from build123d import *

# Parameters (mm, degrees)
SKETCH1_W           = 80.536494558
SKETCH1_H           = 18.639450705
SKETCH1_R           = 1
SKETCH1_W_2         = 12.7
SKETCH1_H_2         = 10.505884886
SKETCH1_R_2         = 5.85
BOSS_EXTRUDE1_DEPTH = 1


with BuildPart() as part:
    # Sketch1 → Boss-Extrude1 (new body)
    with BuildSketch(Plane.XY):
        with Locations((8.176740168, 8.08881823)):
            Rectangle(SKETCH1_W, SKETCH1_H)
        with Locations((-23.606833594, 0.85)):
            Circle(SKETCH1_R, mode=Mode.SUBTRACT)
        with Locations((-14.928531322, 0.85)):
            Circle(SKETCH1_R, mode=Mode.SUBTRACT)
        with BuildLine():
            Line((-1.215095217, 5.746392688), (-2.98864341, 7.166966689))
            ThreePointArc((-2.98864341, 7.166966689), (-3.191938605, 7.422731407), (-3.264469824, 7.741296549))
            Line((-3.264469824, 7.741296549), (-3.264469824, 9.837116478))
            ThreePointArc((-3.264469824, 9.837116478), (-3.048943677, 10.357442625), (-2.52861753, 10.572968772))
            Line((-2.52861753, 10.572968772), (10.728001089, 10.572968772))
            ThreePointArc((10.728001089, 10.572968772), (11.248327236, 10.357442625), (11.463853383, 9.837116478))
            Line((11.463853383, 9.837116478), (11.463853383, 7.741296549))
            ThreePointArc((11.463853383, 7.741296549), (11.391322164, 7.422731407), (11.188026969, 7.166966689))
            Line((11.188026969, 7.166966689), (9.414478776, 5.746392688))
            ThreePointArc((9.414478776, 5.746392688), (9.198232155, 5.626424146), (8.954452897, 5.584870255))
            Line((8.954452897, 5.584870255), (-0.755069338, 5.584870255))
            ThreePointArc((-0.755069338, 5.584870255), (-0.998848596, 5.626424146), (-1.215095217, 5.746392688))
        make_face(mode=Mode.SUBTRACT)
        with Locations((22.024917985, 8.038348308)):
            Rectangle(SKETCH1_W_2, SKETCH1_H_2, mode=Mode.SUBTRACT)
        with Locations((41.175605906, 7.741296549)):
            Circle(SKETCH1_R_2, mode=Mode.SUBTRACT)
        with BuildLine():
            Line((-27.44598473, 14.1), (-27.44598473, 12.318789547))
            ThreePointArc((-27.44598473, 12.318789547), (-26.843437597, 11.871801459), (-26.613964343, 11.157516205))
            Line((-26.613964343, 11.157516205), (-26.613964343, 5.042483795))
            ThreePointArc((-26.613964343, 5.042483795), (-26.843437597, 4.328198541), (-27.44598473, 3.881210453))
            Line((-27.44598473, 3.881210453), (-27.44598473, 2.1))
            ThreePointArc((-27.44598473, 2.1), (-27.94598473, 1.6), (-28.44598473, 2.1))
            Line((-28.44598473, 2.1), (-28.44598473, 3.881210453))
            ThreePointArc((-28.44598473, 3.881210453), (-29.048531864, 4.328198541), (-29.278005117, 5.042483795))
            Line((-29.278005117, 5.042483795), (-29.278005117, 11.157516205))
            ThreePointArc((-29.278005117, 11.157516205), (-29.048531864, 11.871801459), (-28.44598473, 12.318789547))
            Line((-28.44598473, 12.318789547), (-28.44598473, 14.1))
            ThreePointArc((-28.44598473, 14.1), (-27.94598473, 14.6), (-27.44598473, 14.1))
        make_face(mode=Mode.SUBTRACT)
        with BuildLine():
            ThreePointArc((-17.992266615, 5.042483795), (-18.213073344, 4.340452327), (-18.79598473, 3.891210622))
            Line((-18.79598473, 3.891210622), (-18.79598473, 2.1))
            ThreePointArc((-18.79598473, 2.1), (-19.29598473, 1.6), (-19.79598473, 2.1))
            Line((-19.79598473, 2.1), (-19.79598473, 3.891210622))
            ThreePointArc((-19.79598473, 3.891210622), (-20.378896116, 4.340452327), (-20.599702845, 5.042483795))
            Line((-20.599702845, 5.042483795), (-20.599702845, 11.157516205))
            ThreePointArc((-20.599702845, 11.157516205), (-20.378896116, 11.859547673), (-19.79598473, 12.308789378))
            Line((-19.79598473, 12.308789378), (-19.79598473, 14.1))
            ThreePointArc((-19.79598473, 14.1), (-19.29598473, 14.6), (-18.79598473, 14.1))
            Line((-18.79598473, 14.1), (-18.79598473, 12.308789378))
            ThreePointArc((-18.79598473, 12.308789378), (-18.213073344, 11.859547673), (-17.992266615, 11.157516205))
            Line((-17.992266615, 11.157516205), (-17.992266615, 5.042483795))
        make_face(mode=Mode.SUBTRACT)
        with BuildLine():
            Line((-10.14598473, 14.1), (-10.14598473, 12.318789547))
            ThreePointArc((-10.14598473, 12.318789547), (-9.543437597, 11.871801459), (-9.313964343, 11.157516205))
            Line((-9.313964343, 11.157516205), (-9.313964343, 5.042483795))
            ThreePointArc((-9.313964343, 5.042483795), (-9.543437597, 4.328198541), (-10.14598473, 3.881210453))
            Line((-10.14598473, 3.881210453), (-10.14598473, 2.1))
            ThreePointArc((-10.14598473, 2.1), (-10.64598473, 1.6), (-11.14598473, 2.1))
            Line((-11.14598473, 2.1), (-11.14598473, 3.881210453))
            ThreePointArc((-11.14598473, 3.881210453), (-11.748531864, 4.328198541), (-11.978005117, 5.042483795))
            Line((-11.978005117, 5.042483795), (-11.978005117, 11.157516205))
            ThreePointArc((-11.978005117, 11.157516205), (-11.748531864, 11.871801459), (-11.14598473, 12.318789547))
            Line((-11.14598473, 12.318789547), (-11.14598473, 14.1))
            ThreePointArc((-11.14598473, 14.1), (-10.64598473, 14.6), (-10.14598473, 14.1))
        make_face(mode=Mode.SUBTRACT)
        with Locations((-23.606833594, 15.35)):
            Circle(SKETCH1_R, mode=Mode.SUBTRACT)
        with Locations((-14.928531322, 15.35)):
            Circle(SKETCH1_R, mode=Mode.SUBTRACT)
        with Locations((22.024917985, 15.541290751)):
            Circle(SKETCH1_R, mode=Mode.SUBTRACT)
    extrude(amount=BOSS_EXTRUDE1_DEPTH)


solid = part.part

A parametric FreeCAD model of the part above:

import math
import FreeCAD as App
import Part
import Sketcher

V = App.Vector
Q = App.Units.Quantity


def add_polygon(sketch, points):
    """Adds a closed chain of lines whose ends are joined by coincident constraints."""
    first, n = sketch.GeometryCount, len(points)
    for a, b in zip(points, points[1:] + points[:1]):
        sketch.addGeometry(Part.LineSegment(App.Vector(*a, 0), App.Vector(*b, 0)), False)
    for i in range(n):
        sketch.addConstraint(Sketcher.Constraint("Coincident", first + i, 2, first + (i + 1) % n, 1))

doc = App.newDocument("Part")
params = doc.addObject("Spreadsheet::Sheet", "Params")
for row, (alias, value) in enumerate([
    ("sketch1_diameter", "2 mm"),
    ("sketch1_diameter2", "11.7 mm"),
    ("sketch1_radius", "0.5 mm"),
    ("sketch1_width", "12.7 mm"),
    ("pad1_length", "1 mm"),
], start=1):
    params.set(f"A{row}", alias)
    params.set(f"B{row}", "=" + value)
    params.setAlias(f"B{row}", alias)

body = doc.addObject("PartDesign::Body", "Body")

sketch1 = body.newObject("Sketcher::SketchObject", "Sketch")
sketch1.AttachmentSupport = (doc.getObject("XY_Plane"), [""])
sketch1.MapMode = "FlatFace"
add_polygon(sketch1, [(-32.09, 17.41), (-32.09, -1.23), (48.44, -1.23), (48.44, 17.41)])
sketch1.addGeometry(Part.Circle(V(-23.61, 0.85, 0), V(0, 0, 1), 1), False)
sketch1.addGeometry(Part.Circle(V(-14.93, 0.85, 0), V(0, 0, 1), 1), False)
sketch1.addGeometry(Part.ArcOfCircle(Part.Circle(V(-27.95, 14.1, 0), V(0, 0, 1), 0.5), math.radians(0), math.radians(180)), False)
sketch1.addGeometry(Part.LineSegment(V(-27.45, 14.1, 0), V(-27.45, 12.32, 0)), False)
sketch1.addGeometry(Part.ArcOfCircle(Part.Circle(V(-27.84, 11.16, 0), V(0, 0, 1), 1.23), math.radians(0), math.radians(71)), False)
sketch1.addGeometry(Part.LineSegment(V(-26.61, 11.16, 0), V(-26.61, 5.04, 0)), False)
sketch1.addGeometry(Part.ArcOfCircle(Part.Circle(V(-27.84, 5.04, 0), V(0, 0, 1), 1.23), math.radians(-71), math.radians(0)), False)
sketch1.addGeometry(Part.LineSegment(V(-27.45, 3.88, 0), V(-27.45, 2.1, 0)), False)
sketch1.addGeometry(Part.ArcOfCircle(Part.Circle(V(-27.95, 2.1, 0), V(0, 0, 1), 0.5), math.radians(180), math.radians(360)), False)
sketch1.addGeometry(Part.LineSegment(V(-28.45, 2.1, 0), V(-28.45, 3.88, 0)), False)
sketch1.addGeometry(Part.ArcOfCircle(Part.Circle(V(-28.05, 5.04, 0), V(0, 0, 1), 1.23), math.radians(180), math.radians(251)), False)
sketch1.addGeometry(Part.LineSegment(V(-29.28, 5.04, 0), V(-29.28, 11.16, 0)), False)
sketch1.addGeometry(Part.ArcOfCircle(Part.Circle(V(-28.05, 11.16, 0), V(0, 0, 1), 1.23), math.radians(109), math.radians(180)), False)
sketch1.addGeometry(Part.LineSegment(V(-28.45, 12.32, 0), V(-28.45, 14.1, 0)), False)
sketch1.addGeometry(Part.LineSegment(V(-17.99, 11.16, 0), V(-17.99, 5.04, 0)), False)
sketch1.addGeometry(Part.ArcOfCircle(Part.Circle(V(-19.22, 5.04, 0), V(0, 0, 1), 1.23), math.radians(-70), math.radians(0)), False)
sketch1.addGeometry(Part.LineSegment(V(-18.8, 3.89, 0), V(-18.8, 2.1, 0)), False)
sketch1.addGeometry(Part.ArcOfCircle(Part.Circle(V(-19.3, 2.1, 0), V(0, 0, 1), 0.5), math.radians(180), math.radians(360)), False)
sketch1.addGeometry(Part.LineSegment(V(-19.8, 2.1, 0), V(-19.8, 3.89, 0)), False)
sketch1.addGeometry(Part.ArcOfCircle(Part.Circle(V(-19.37, 5.04, 0), V(0, 0, 1), 1.23), math.radians(180), math.radians(250)), False)
sketch1.addGeometry(Part.LineSegment(V(-20.6, 5.04, 0), V(-20.6, 11.16, 0)), False)
sketch1.addGeometry(Part.ArcOfCircle(Part.Circle(V(-19.37, 11.16, 0), V(0, 0, 1), 1.23), math.radians(110), math.radians(180)), False)
sketch1.addGeometry(Part.LineSegment(V(-19.8, 12.31, 0), V(-19.8, 14.1, 0)), False)
sketch1.addGeometry(Part.ArcOfCircle(Part.Circle(V(-19.3, 14.1, 0), V(0, 0, 1), 0.5), math.radians(0), math.radians(180)), False)
sketch1.addGeometry(Part.LineSegment(V(-18.8, 14.1, 0), V(-18.8, 12.31, 0)), False)
sketch1.addGeometry(Part.ArcOfCircle(Part.Circle(V(-19.22, 11.16, 0), V(0, 0, 1), 1.23), math.radians(0), math.radians(70)), False)
sketch1.addGeometry(Part.ArcOfCircle(Part.Circle(V(-10.65, 14.1, 0), V(0, 0, 1), 0.5), math.radians(0), math.radians(180)), False)
sketch1.addGeometry(Part.LineSegment(V(-10.15, 14.1, 0), V(-10.15, 12.32, 0)), False)
sketch1.addGeometry(Part.ArcOfCircle(Part.Circle(V(-10.54, 11.16, 0), V(0, 0, 1), 1.23), math.radians(0), math.radians(71)), False)
sketch1.addGeometry(Part.LineSegment(V(-9.31, 11.16, 0), V(-9.31, 5.04, 0)), False)
sketch1.addGeometry(Part.ArcOfCircle(Part.Circle(V(-10.54, 5.04, 0), V(0, 0, 1), 1.23), math.radians(-71), math.radians(0)), False)
sketch1.addGeometry(Part.LineSegment(V(-10.15, 3.88, 0), V(-10.15, 2.1, 0)), False)
sketch1.addGeometry(Part.ArcOfCircle(Part.Circle(V(-10.65, 2.1, 0), V(0, 0, 1), 0.5), math.radians(180), math.radians(360)), False)
sketch1.addGeometry(Part.LineSegment(V(-11.15, 2.1, 0), V(-11.15, 3.88, 0)), False)
sketch1.addGeometry(Part.ArcOfCircle(Part.Circle(V(-10.75, 5.04, 0), V(0, 0, 1), 1.23), math.radians(180), math.radians(251)), False)
sketch1.addGeometry(Part.LineSegment(V(-11.98, 5.04, 0), V(-11.98, 11.16, 0)), False)
sketch1.addGeometry(Part.ArcOfCircle(Part.Circle(V(-10.75, 11.16, 0), V(0, 0, 1), 1.23), math.radians(109), math.radians(180)), False)
sketch1.addGeometry(Part.LineSegment(V(-11.15, 12.32, 0), V(-11.15, 14.1, 0)), False)
sketch1.addGeometry(Part.ArcOfCircle(Part.Circle(V(-0.76, 6.32, 0), V(0, 0, 1), 0.74), math.radians(-129), math.radians(-90)), False)
sketch1.addGeometry(Part.LineSegment(V(-1.22, 5.75, 0), V(-2.99, 7.17, 0)), False)
sketch1.addGeometry(Part.ArcOfCircle(Part.Circle(V(-2.53, 7.74, 0), V(0, 0, 1), 0.74), math.radians(-180), math.radians(-129)), False)
sketch1.addGeometry(Part.LineSegment(V(-3.26, 7.74, 0), V(-3.26, 9.84, 0)), False)
sketch1.addGeometry(Part.ArcOfCircle(Part.Circle(V(-2.53, 9.84, 0), V(0, 0, 1), 0.74), math.radians(90), math.radians(180)), False)
sketch1.addGeometry(Part.LineSegment(V(-2.53, 10.57, 0), V(10.73, 10.57, 0)), False)
sketch1.addGeometry(Part.ArcOfCircle(Part.Circle(V(10.73, 9.84, 0), V(0, 0, 1), 0.74), math.radians(0), math.radians(90)), False)
sketch1.addGeometry(Part.LineSegment(V(11.46, 9.84, 0), V(11.46, 7.74, 0)), False)
sketch1.addGeometry(Part.ArcOfCircle(Part.Circle(V(10.73, 7.74, 0), V(0, 0, 1), 0.74), math.radians(-51), math.radians(0)), False)
sketch1.addGeometry(Part.LineSegment(V(11.19, 7.17, 0), V(9.41, 5.75, 0)), False)
sketch1.addGeometry(Part.ArcOfCircle(Part.Circle(V(8.95, 6.32, 0), V(0, 0, 1), 0.74), math.radians(-90), math.radians(-51)), False)
sketch1.addGeometry(Part.LineSegment(V(8.95, 5.58, 0), V(-0.76, 5.58, 0)), False)
add_polygon(sketch1, [(28.37, 2.79), (15.67, 2.79), (15.67, 13.29), (28.37, 13.29)])
sketch1.addGeometry(Part.Circle(V(41.18, 7.74, 0), V(0, 0, 1), 5.85), False)
sketch1.addGeometry(Part.Circle(V(-23.61, 15.35, 0), V(0, 0, 1), 1), False)
sketch1.addGeometry(Part.Circle(V(-14.93, 15.35, 0), V(0, 0, 1), 1), False)
sketch1.addGeometry(Part.Circle(V(22.02, 15.54, 0), V(0, 0, 1), 1), False)
sketch1.addConstraint([
    Sketcher.Constraint("Tangent", 6, 1, 7, 1),
    Sketcher.Constraint("Coincident", 7, 2, 8, 2),
    Sketcher.Constraint("Tangent", 8, 1, 9, 1),
    Sketcher.Constraint("Tangent", 9, 2, 10, 2),
    Sketcher.Constraint("Coincident", 10, 1, 11, 1),
    Sketcher.Constraint("Tangent", 11, 2, 12, 2),
    Sketcher.Constraint("Tangent", 12, 1, 13, 1),
    Sketcher.Constraint("Coincident", 13, 2, 14, 2),
    Sketcher.Constraint("Tangent", 14, 1, 15, 1),
    Sketcher.Constraint("Tangent", 15, 2, 16, 2),
    Sketcher.Constraint("Coincident", 16, 1, 17, 1),
    Sketcher.Constraint("Tangent", 17, 2, 6, 2),
    Sketcher.Constraint("Tangent", 18, 2, 19, 2),
    Sketcher.Constraint("Coincident", 19, 1, 20, 1),
    Sketcher.Constraint("Tangent", 20, 2, 21, 2),
    Sketcher.Constraint("Tangent", 21, 1, 22, 1),
    Sketcher.Constraint("Coincident", 22, 2, 23, 2),
    Sketcher.Constraint("Tangent", 23, 1, 24, 1),
    Sketcher.Constraint("Tangent", 24, 2, 25, 2),
    Sketcher.Constraint("Coincident", 25, 1, 26, 1),
    Sketcher.Constraint("Tangent", 26, 2, 27, 2),
    Sketcher.Constraint("Tangent", 27, 1, 28, 1),
    Sketcher.Constraint("Coincident", 28, 2, 29, 2),
    Sketcher.Constraint("Tangent", 29, 1, 18, 1),
    Sketcher.Constraint("Tangent", 30, 1, 31, 1),
    Sketcher.Constraint("Coincident", 31, 2, 32, 2),
    Sketcher.Constraint("Tangent", 32, 1, 33, 1),
    Sketcher.Constraint("Tangent", 33, 2, 34, 2),
    Sketcher.Constraint("Coincident", 34, 1, 35, 1),
    Sketcher.Constraint("Tangent", 35, 2, 36, 2),
    Sketcher.Constraint("Tangent", 36, 1, 37, 1),
    Sketcher.Constraint("Coincident", 37, 2, 38, 2),
    Sketcher.Constraint("Tangent", 38, 1, 39, 1),
    Sketcher.Constraint("Tangent", 39, 2, 40, 2),
    Sketcher.Constraint("Coincident", 40, 1, 41, 1),
    Sketcher.Constraint("Tangent", 41, 2, 30, 2),
    Sketcher.Constraint("Tangent", 42, 1, 43, 1),
    Sketcher.Constraint("Tangent", 43, 2, 44, 2),
    Sketcher.Constraint("Tangent", 44, 1, 45, 1),
    Sketcher.Constraint("Tangent", 45, 2, 46, 2),
    Sketcher.Constraint("Tangent", 46, 1, 47, 1),
    Sketcher.Constraint("Tangent", 47, 2, 48, 2),
    Sketcher.Constraint("Tangent", 48, 1, 49, 1),
    Sketcher.Constraint("Tangent", 49, 2, 50, 2),
    Sketcher.Constraint("Tangent", 50, 1, 51, 1),
    Sketcher.Constraint("Tangent", 51, 2, 52, 2),
    Sketcher.Constraint("Tangent", 52, 1, 53, 1),
    Sketcher.Constraint("Tangent", 53, 2, 42, 2),
    Sketcher.Constraint("Vertical", 0),
    Sketcher.Constraint("Horizontal", 1),
    Sketcher.Constraint("Vertical", 2),
    Sketcher.Constraint("Horizontal", 3),
    Sketcher.Constraint("Vertical", 7),
    Sketcher.Constraint("Vertical", 9),
    Sketcher.Constraint("Vertical", 11),
    Sketcher.Constraint("Vertical", 13),
    Sketcher.Constraint("Vertical", 15),
    Sketcher.Constraint("Vertical", 17),
    Sketcher.Constraint("Vertical", 18),
    Sketcher.Constraint("Vertical", 20),
    Sketcher.Constraint("Vertical", 22),
    Sketcher.Constraint("Vertical", 24),
    Sketcher.Constraint("Vertical", 26),
    Sketcher.Constraint("Vertical", 28),
    Sketcher.Constraint("Vertical", 31),
    Sketcher.Constraint("Vertical", 33),
    Sketcher.Constraint("Vertical", 35),
    Sketcher.Constraint("Vertical", 37),
    Sketcher.Constraint("Vertical", 39),
    Sketcher.Constraint("Vertical", 41),
    Sketcher.Constraint("Vertical", 45),
    Sketcher.Constraint("Horizontal", 47),
    Sketcher.Constraint("Vertical", 49),
    Sketcher.Constraint("Horizontal", 53),
    Sketcher.Constraint("Horizontal", 54),
    Sketcher.Constraint("Vertical", 55),
    Sketcher.Constraint("Horizontal", 56),
    Sketcher.Constraint("Vertical", 57),
    Sketcher.Constraint("Equal", 4, 5),
    Sketcher.Constraint("Equal", 8, 10),
    Sketcher.Constraint("Equal", 6, 12),
    Sketcher.Constraint("Equal", 10, 14),
    Sketcher.Constraint("Equal", 14, 16),
    Sketcher.Constraint("Equal", 16, 19),
    Sketcher.Constraint("Equal", 12, 21),
    Sketcher.Constraint("Equal", 19, 23),
    Sketcher.Constraint("Equal", 23, 25),
    Sketcher.Constraint("Equal", 21, 27),
    Sketcher.Constraint("Equal", 25, 29),
    Sketcher.Constraint("Equal", 27, 30),
    Sketcher.Constraint("Equal", 29, 32),
    Sketcher.Constraint("Equal", 32, 34),
    Sketcher.Constraint("Equal", 30, 36),
    Sketcher.Constraint("Equal", 34, 38),
    Sketcher.Constraint("Equal", 38, 40),
    Sketcher.Constraint("Equal", 42, 44),
    Sketcher.Constraint("Equal", 44, 46),
    Sketcher.Constraint("Equal", 46, 48),
    Sketcher.Constraint("Equal", 48, 50),
    Sketcher.Constraint("Equal", 50, 52),
    Sketcher.Constraint("Equal", 5, 59),
    Sketcher.Constraint("Equal", 59, 60),
    Sketcher.Constraint("Equal", 60, 61),
    Sketcher.Constraint("Horizontal", 4, 3, 5, 3),
    Sketcher.Constraint("Horizontal", 10, 3, 14, 3),
    Sketcher.Constraint("Horizontal", 8, 3, 16, 3),
    Sketcher.Constraint("Horizontal", 14, 3, 19, 3),
    Sketcher.Constraint("Horizontal", 12, 3, 21, 3),
    Sketcher.Constraint("Horizontal", 19, 3, 23, 3),
    Sketcher.Constraint("Horizontal", 16, 3, 25, 3),
    Sketcher.Constraint("Horizontal", 6, 3, 27, 3),
    Sketcher.Constraint("Horizontal", 25, 3, 29, 3),
    Sketcher.Constraint("Horizontal", 27, 3, 30, 3),
    Sketcher.Constraint("Horizontal", 29, 3, 32, 3),
    Sketcher.Constraint("Horizontal", 23, 3, 34, 3),
    Sketcher.Constraint("Horizontal", 21, 3, 36, 3),
    Sketcher.Constraint("Horizontal", 34, 3, 38, 3),
    Sketcher.Constraint("Horizontal", 32, 3, 40, 3),
    Sketcher.Constraint("Horizontal", 44, 3, 50, 3),
    Sketcher.Constraint("Horizontal", 50, 3, 58, 3),
    Sketcher.Constraint("Horizontal", 59, 3, 60, 3),
    Sketcher.Constraint("Horizontal", 10, 1, 13, 2),
    Sketcher.Constraint("Horizontal", 7, 2, 16, 1),
    Sketcher.Constraint("Horizontal", 19, 1, 22, 2),
    Sketcher.Constraint("Horizontal", 25, 1, 28, 2),
    Sketcher.Constraint("Horizontal", 16, 1, 31, 2),
    Sketcher.Constraint("Horizontal", 13, 2, 34, 1),
    Sketcher.Constraint("Horizontal", 34, 1, 37, 2),
    Sketcher.Constraint("Horizontal", 43, 2, 50, 1),
    Sketcher.Constraint("Vertical", 4, 3, 59, 3),
    Sketcher.Constraint("Vertical", 5, 3, 60, 3),
    Sketcher.Constraint("Equal", 7, 11),
    Sketcher.Constraint("Diameter", 4, Q("2 mm")),
    Sketcher.Constraint("Diameter", 58, Q("11.7 mm")),
    Sketcher.Constraint("Radius", 6, Q("0.5 mm")),
    Sketcher.Constraint("DistanceX", 54, 2, 54, 1, Q("12.7 mm")),
    Sketcher.Constraint("DistanceY", -1, 1, 6, 3, Q("14.1 mm")),
    Sketcher.Constraint("DistanceY", -1, 1, 12, 3, Q("2.1 mm")),
    Sketcher.Constraint("DistanceY", -1, 1, 4, 3, Q("0.85 mm")),
    Sketcher.Constraint("DistanceY", -1, 1, 59, 3, Q("15.35 mm")),
    Sketcher.Constraint("Radius", 8, Q("1.22642 mm")),
    Sketcher.Constraint("DistanceX", -1, 1, 48, 3, Q("10.728001 mm")),
    Sketcher.Constraint("Radius", 42, Q("0.735852 mm")),
    Sketcher.Constraint("DistanceX", 47, 1, 47, 2, Q("13.256619 mm")),
    Sketcher.Constraint("DistanceY", 0, 2, 0, 1, Q("18.639451 mm")),
    Sketcher.Constraint("DistanceY", 7, 2, 7, 1, Q("1.78121 mm")),
    Sketcher.Constraint("DistanceY", 20, 2, 20, 1, Q("1.791211 mm")),
    Sketcher.Constraint("DistanceY", 45, 1, 45, 2, Q("2.09582 mm")),
    Sketcher.Constraint("DistanceX", 1, 1, 1, 2, Q("80.536495 mm")),
    Sketcher.Constraint("DistanceX", 53, 2, 53, 1, Q("9.709522 mm")),
    Sketcher.Constraint("DistanceY", 9, 2, 9, 1, Q("6.115032 mm")),
    Sketcher.Constraint("DistanceY", 55, 1, 55, 2, Q("10.505885 mm")),
    Sketcher.Constraint("DistanceX", 5, 3, -1, 1, Q("14.928531 mm")),
    Sketcher.Constraint("DistanceY", -1, 1, 61, 3, Q("15.541291 mm")),
    Sketcher.Constraint("DistanceY", -1, 1, 46, 1, Q("10.572969 mm")),
    Sketcher.Constraint("DistanceX", -1, 1, 51, 2, Q("9.414479 mm")),
    Sketcher.Constraint("DistanceY", -1, 1, 55, 2, Q("13.291291 mm")),
    Sketcher.Constraint("DistanceX", 4, 3, -1, 1, Q("23.606834 mm")),
    Sketcher.Constraint("DistanceX", 6, 3, -1, 1, Q("27.945985 mm")),
    Sketcher.Constraint("DistanceX", 19, 3, -1, 1, Q("19.218687 mm")),
    Sketcher.Constraint("DistanceX", 30, 3, -1, 1, Q("10.645985 mm")),
    Sketcher.Constraint("DistanceX", -1, 1, 58, 3, Q("41.175606 mm")),
    Sketcher.Constraint("DistanceX", -1, 1, 61, 3, Q("22.024918 mm")),
    Sketcher.Constraint("DistanceX", 0, 2, -1, 1, Q("32.091507 mm")),
    Sketcher.Constraint("DistanceY", 0, 2, -1, 1, Q("1.230907 mm")),
    Sketcher.Constraint("DistanceX", -1, 1, 54, 2, Q("15.674918 mm")),
])
sketch1.setExpression("Constraints[140]", "Params.sketch1_diameter")
sketch1.setExpression("Constraints[141]", "Params.sketch1_diameter2")
sketch1.setExpression("Constraints[142]", "Params.sketch1_radius")
sketch1.setExpression("Constraints[143]", "Params.sketch1_width")
pad1 = body.newObject("PartDesign::Pad", "Pad")
pad1.Profile = sketch1
pad1.setExpression("Length", "Params.pad1_length")

doc.recompute()
